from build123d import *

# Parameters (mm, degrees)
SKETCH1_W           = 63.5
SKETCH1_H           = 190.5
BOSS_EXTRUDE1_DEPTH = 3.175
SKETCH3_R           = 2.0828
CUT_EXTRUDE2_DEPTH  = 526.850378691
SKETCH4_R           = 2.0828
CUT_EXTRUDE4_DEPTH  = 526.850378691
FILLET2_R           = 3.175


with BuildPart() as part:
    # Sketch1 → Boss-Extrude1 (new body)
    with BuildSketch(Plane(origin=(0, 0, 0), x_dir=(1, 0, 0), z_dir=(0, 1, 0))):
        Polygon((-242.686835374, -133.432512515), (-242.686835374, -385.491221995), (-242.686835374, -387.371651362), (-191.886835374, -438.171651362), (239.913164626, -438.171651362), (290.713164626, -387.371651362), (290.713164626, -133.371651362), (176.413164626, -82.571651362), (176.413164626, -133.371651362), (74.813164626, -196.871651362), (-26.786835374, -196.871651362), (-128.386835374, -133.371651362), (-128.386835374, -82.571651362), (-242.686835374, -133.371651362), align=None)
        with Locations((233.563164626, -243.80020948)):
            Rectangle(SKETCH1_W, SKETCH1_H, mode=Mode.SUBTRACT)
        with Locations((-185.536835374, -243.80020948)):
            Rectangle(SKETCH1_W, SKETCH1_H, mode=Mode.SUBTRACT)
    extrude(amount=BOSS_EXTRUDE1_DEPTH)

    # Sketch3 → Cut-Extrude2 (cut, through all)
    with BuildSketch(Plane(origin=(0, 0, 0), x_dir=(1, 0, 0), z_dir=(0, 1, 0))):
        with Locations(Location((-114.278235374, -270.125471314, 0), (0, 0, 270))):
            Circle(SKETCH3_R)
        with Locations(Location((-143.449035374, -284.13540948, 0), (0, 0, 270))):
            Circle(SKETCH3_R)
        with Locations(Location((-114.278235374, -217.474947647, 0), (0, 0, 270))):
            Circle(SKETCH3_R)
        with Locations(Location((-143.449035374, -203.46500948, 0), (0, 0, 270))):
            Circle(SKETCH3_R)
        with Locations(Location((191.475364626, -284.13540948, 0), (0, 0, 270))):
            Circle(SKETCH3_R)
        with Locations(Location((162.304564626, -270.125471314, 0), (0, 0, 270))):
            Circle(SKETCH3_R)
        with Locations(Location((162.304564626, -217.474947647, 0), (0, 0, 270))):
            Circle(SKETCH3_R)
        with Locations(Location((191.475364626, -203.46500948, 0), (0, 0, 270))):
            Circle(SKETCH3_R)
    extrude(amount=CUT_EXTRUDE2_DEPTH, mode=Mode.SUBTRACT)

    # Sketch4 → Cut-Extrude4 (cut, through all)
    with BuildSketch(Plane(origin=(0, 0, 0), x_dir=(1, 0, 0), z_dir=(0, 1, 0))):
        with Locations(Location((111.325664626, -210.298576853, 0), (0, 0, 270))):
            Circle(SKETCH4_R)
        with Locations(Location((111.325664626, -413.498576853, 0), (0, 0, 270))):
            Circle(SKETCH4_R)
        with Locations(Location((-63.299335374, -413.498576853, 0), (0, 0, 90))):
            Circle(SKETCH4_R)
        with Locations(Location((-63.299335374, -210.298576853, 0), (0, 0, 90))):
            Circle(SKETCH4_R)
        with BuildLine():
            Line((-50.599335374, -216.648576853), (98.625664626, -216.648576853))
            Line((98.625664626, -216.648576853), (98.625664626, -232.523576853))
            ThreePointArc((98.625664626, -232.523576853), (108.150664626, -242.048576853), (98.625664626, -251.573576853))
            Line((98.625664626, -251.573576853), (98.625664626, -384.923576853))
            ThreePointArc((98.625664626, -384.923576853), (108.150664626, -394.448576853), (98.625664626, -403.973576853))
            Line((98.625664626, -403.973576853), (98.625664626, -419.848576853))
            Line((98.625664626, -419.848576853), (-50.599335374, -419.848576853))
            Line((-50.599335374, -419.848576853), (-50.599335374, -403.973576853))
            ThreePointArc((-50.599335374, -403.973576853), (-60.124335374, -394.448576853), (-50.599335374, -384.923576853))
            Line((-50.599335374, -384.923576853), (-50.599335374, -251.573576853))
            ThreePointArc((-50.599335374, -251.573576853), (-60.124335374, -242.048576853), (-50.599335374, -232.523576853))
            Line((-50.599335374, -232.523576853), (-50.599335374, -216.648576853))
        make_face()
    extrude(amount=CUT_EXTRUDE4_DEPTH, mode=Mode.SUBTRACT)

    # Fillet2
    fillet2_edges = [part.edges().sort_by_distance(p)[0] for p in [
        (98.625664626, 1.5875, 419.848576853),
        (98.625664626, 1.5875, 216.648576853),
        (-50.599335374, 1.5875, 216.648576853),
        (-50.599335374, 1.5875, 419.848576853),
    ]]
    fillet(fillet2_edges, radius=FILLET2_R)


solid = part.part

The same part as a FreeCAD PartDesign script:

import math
import FreeCAD as App
import Part
import Sketcher
Q = App.Units.Quantity


def edges_at(feature, points):
    """Names of the edges that pass closest to the given points."""
    edges = feature.Shape.Edges
    near = lambda p: min(range(len(edges)), key=lambda i: edges[i].distToShape(Part.Vertex(*p))[0])
    return sorted({f"Edge{near(p) + 1}" for p in points})

doc = App.newDocument("Part")
body = doc.addObject("PartDesign::Body", "Body")

# Sketch on XZ plane
sketch1 = doc.addObject("Sketcher::SketchObject", "Sketch")
body.addObject(sketch1)
sketch1.AttachmentSupport = (doc.XZ_Plane, [""])
sketch1.MapMode = "FlatFace"
sketch1.addGeometry([
    Part.LineSegment(App.Vector(-243, 387, 0), App.Vector(-192, 438, 0)),  # 0
    Part.LineSegment(App.Vector(-192, 438, 0), App.Vector(240, 438, 0)),  # 1
    Part.LineSegment(App.Vector(240, 438, 0), App.Vector(291, 387, 0)),  # 2
    Part.LineSegment(App.Vector(291, 387, 0), App.Vector(291, 133, 0)),  # 3
    Part.LineSegment(App.Vector(291, 133, 0), App.Vector(176, 83, 0)),  # 4
    Part.LineSegment(App.Vector(176, 83, 0), App.Vector(176, 133, 0)),  # 5
    Part.LineSegment(App.Vector(176, 133, 0), App.Vector(75, 197, 0)),  # 6
    Part.LineSegment(App.Vector(75, 197, 0), App.Vector(-27, 197, 0)),  # 7
    Part.LineSegment(App.Vector(-27, 197, 0), App.Vector(-128, 133, 0)),  # 8
    Part.LineSegment(App.Vector(-128, 133, 0), App.Vector(-128, 83, 0)),  # 9
    Part.LineSegment(App.Vector(-128, 83, 0), App.Vector(-243, 133, 0)),  # 10
    Part.LineSegment(App.Vector(-243, 133, 0), App.Vector(-243, 387, 0)),  # 11
    Part.LineSegment(App.Vector(-154, 339, 0), App.Vector(-217, 339, 0)),  # 12
    Part.LineSegment(App.Vector(-217, 339, 0), App.Vector(-217, 149, 0)),  # 13
    Part.LineSegment(App.Vector(-217, 149, 0), App.Vector(-154, 149, 0)),  # 14
    Part.LineSegment(App.Vector(-154, 149, 0), App.Vector(-154, 339, 0)),  # 15
    Part.LineSegment(App.Vector(265, 339, 0), App.Vector(202, 339, 0)),  # 16
    Part.LineSegment(App.Vector(202, 339, 0), App.Vector(202, 149, 0)),  # 17
    Part.LineSegment(App.Vector(202, 149, 0), App.Vector(265, 149, 0)),  # 18
    Part.LineSegment(App.Vector(265, 149, 0), App.Vector(265, 339, 0)),  # 19
], False)
sketch1.addConstraint([
    Sketcher.Constraint("Coincident", 0, 2, 1, 1),
    Sketcher.Constraint("Coincident", 1, 2, 2, 1),
    Sketcher.Constraint("Coincident", 2, 2, 3, 1),
    Sketcher.Constraint("Coincident", 3, 2, 4, 1),
    Sketcher.Constraint("Coincident", 4, 2, 5, 1),
    Sketcher.Constraint("Coincident", 5, 2, 6, 1),
    Sketcher.Constraint("Coincident", 6, 2, 7, 1),
    Sketcher.Constraint("Coincident", 7, 2, 8, 1),
    Sketcher.Constraint("Coincident", 8, 2, 9, 1),
    Sketcher.Constraint("Coincident", 9, 2, 10, 1),
    Sketcher.Constraint("Coincident", 10, 2, 11, 1),
    Sketcher.Constraint("Coincident", 11, 2, 0, 1),
    Sketcher.Constraint("Coincident", 12, 2, 13, 1),
    Sketcher.Constraint("Coincident", 13, 2, 14, 1),
    Sketcher.Constraint("Coincident", 14, 2, 15, 1),
    Sketcher.Constraint("Coincident", 15, 2, 12, 1),
    Sketcher.Constraint("Coincident", 16, 2, 17, 1),
    Sketcher.Constraint("Coincident", 17, 2, 18, 1),
    Sketcher.Constraint("Coincident", 18, 2, 19, 1),
    Sketcher.Constraint("Coincident", 19, 2, 16, 1),
    Sketcher.Constraint("Horizontal", 1),
    Sketcher.Constraint("Vertical", 3),
    Sketcher.Constraint("Vertical", 5),
    Sketcher.Constraint("Horizontal", 7),
    Sketcher.Constraint("Vertical", 9),
    Sketcher.Constraint("Vertical", 11),
    Sketcher.Constraint("Horizontal", 12),
    Sketcher.Constraint("Vertical", 13),
    Sketcher.Constraint("Horizontal", 14),
    Sketcher.Constraint("Vertical", 15),
    Sketcher.Constraint("Horizontal", 16),
    Sketcher.Constraint("Vertical", 17),
    Sketcher.Constraint("Horizontal", 18),
    Sketcher.Constraint("Vertical", 19),
    Sketcher.Constraint("Perpendicular", 0, 2),
    Sketcher.Constraint("Horizontal", 3, 2, 5, 2),
    Sketcher.Constraint("Horizontal", 5, 2, 8, 2),
    Sketcher.Constraint("Horizontal", 4, 2, 9, 2),
    Sketcher.Constraint("Horizontal", 8, 2, 10, 2),
    Sketcher.Constraint("Horizontal", 2, 2, 11, 2),
    Sketcher.Constraint("Horizontal", 15, 2, 16, 2),
    Sketcher.Constraint("Horizontal", 14, 2, 17, 2),
    Sketcher.Constraint("Equal", 14, 16),
    Sketcher.Constraint("Equal", 0, 2),
    Sketcher.Constraint("Equal", 6, 8),
    Sketcher.Constraint("Equal", 4, 10),
    Sketcher.Constraint("DistanceX", 1, 1, 1, 2, Q("17 in")),
    Sketcher.Constraint("DistanceX", 7, 2, 7, 1, Q("4 in")),
    Sketcher.Constraint("DistanceY", 3, 2, 3, 1, Q("10 in")),
    Sketcher.Constraint("DistanceY", 5, 1, 5, 2, Q("2 in")),
    Sketcher.Constraint("DistanceX", 12, 2, 12, 1, Q("2.5 in")),
    Sketcher.Constraint("DistanceY", 13, 2, 13, 1, Q("7.5 in")),
    Sketcher.Constraint("DistanceX", 1, 2, 2, 2, Q("2 in")),
    Sketcher.Constraint("DistanceX", 6, 2, 5, 2, Q("4 in")),
    Sketcher.Constraint("DistanceX", 11, 2, 12, 2, Q("1 in")),
    Sketcher.Constraint("DistanceX", 6, 2, 16, 2, Q("5 in")),
    Sketcher.Constraint("DistanceY", 5, 2, 6, 2, Q("2.5 in")),
    Sketcher.Constraint("DistanceX", 0, 2, -1, 1, Q("7.5545998 in")),
    Sketcher.Constraint("DistanceY", -1, 1, 0, 2, Q("438.171651 mm")),
    Sketcher.Constraint("DistanceY", -1, 1, 12, 2, Q("339.050209 mm")),
])
pad1 = doc.addObject("PartDesign::Pad", "Pad")
body.addObject(pad1)
pad1.Profile = sketch1
pad1.Length = Q("0.125 in")
pad1.Reversed = True

# Sketch on XZ plane
sketch2 = doc.addObject("Sketcher::SketchObject", "Sketch001")
body.addObject(sketch2)
sketch2.AttachmentSupport = (doc.XZ_Plane, [""])
sketch2.MapMode = "FlatFace"
sketch2.addGeometry([
    Part.Circle(App.Vector(-114.3, 270.1, 0), App.Vector(0, 0, 1), 2.1),  # 0
    Part.Circle(App.Vector(-143.4, 284.1, 0), App.Vector(0, 0, 1), 2.1),  # 1
    Part.Circle(App.Vector(-114.3, 217.5, 0), App.Vector(0, 0, 1), 2.1),  # 2
    Part.Circle(App.Vector(-143.4, 203.5, 0), App.Vector(0, 0, 1), 2.1),  # 3
    Part.Circle(App.Vector(191.5, 284.1, 0), App.Vector(0, 0, 1), 2.1),  # 4
    Part.Circle(App.Vector(162.3, 270.1, 0), App.Vector(0, 0, 1), 2.1),  # 5
    Part.Circle(App.Vector(162.3, 217.5, 0), App.Vector(0, 0, 1), 2.1),  # 6
    Part.Circle(App.Vector(191.5, 203.5, 0), App.Vector(0, 0, 1), 2.1),  # 7
], False)
sketch2.addConstraint([
    Sketcher.Constraint("Equal", 0, 1),
    Sketcher.Constraint("Equal", 1, 2),
    Sketcher.Constraint("Equal", 2, 3),
    Sketcher.Constraint("Equal", 3, 4),
    Sketcher.Constraint("Equal", 4, 5),
    Sketcher.Constraint("Equal", 5, 6),
    Sketcher.Constraint("Equal", 6, 7),
    Sketcher.Constraint("Horizontal", 1, 3, 4, 3),
    Sketcher.Constraint("Horizontal", 0, 3, 5, 3),
    Sketcher.Constraint("Horizontal", 2, 3, 6, 3),
    Sketcher.Constraint("Horizontal", 3, 3, 7, 3),
    Sketcher.Constraint("Vertical", 0, 3, 2, 3),
    Sketcher.Constraint("Vertical", 1, 3, 3, 3),
    Sketcher.Constraint("Vertical", 5, 3, 6, 3),
    Sketcher.Constraint("Vertical", 4, 3, 7, 3),
    Sketcher.Constraint("Diameter", 0, Q("0.164 in")),
    Sketcher.Constraint("DistanceY", 3, 3, 1, 3, Q("3.176 in")),
    Sketcher.Constraint("DistanceX", 1, 3, 4, 3, Q("13.186 in")),
    Sketcher.Constraint("DistanceX", 1, 3, -1, 1, Q("5.6475998 in")),
    Sketcher.Constraint("DistanceX", 1, 3, 0, 3, Q("29.1708 mm")),
    Sketcher.Constraint("DistanceX", 5, 3, 4, 3, Q("29.1708 mm")),
    Sketcher.Constraint("DistanceY", -1, 1, 0, 3, Q("270.125471 mm")),
    Sketcher.Constraint("DistanceY", -1, 1, 1, 3, Q("284.135409 mm")),
    Sketcher.Constraint("DistanceY", 2, 3, 1, 3, Q("66.660462 mm")),
])
pocket1 = doc.addObject("PartDesign::Pocket", "Pocket")
body.addObject(pocket1)
pocket1.Profile = sketch2
pocket1.Type = "ThroughAll"

# Sketch on XZ plane
sketch3 = doc.addObject("Sketcher::SketchObject", "Sketch002")
body.addObject(sketch3)
sketch3.AttachmentSupport = (doc.XZ_Plane, [""])
sketch3.MapMode = "FlatFace"
sketch3.addGeometry([
    Part.Circle(App.Vector(111.3, 210.3, 0), App.Vector(0, 0, 1), 2.1),  # 0
    Part.Circle(App.Vector(111.3, 413.5, 0), App.Vector(0, 0, 1), 2.1),  # 1
    Part.Circle(App.Vector(-63.3, 413.5, 0), App.Vector(0, 0, 1), 2.1),  # 2
    Part.Circle(App.Vector(-63.3, 210.3, 0), App.Vector(0, 0, 1), 2.1),  # 3
    Part.LineSegment(App.Vector(98.6, 216.6, 0), App.Vector(-50.6, 216.6, 0)),  # 4
    Part.LineSegment(App.Vector(-50.6, 216.6, 0), App.Vector(-50.6, 232.5, 0)),  # 5
    Part.ArcOfCircle(Part.Circle(App.Vector(-50.6, 242, 0), App.Vector(0, 0, 1), 9.5), math.radians(90), math.radians(270)),  # 6
    Part.LineSegment(App.Vector(-50.6, 251.6, 0), App.Vector(-50.6, 384.9, 0)),  # 7
    Part.ArcOfCircle(Part.Circle(App.Vector(-50.6, 394.4, 0), App.Vector(0, 0, 1), 9.5), math.radians(90), math.radians(270)),  # 8
    Part.LineSegment(App.Vector(-50.6, 404, 0), App.Vector(-50.6, 419.8, 0)),  # 9
    Part.LineSegment(App.Vector(-50.6, 419.8, 0), App.Vector(98.6, 419.8, 0)),  # 10
    Part.LineSegment(App.Vector(98.6, 419.8, 0), App.Vector(98.6, 404, 0)),  # 11
    Part.ArcOfCircle(Part.Circle(App.Vector(98.6, 394.4, 0), App.Vector(0, 0, 1), 9.5), math.radians(-90), math.radians(90)),  # 12
    Part.LineSegment(App.Vector(98.6, 384.9, 0), App.Vector(98.6, 251.6, 0)),  # 13
    Part.ArcOfCircle(Part.Circle(App.Vector(98.6, 242, 0), App.Vector(0, 0, 1), 9.5), math.radians(-90), math.radians(90)),  # 14
    Part.LineSegment(App.Vector(98.6, 232.5, 0), App.Vector(98.6, 216.6, 0)),  # 15
], False)
sketch3.addConstraint([
    Sketcher.Constraint("Coincident", 4, 2, 5, 1),
    Sketcher.Constraint("Coincident", 5, 2, 6, 2),
    Sketcher.Constraint("Coincident", 6, 1, 7, 1),
    Sketcher.Constraint("Coincident", 7, 2, 8, 2),
    Sketcher.Constraint("Coincident", 8, 1, 9, 1),
    Sketcher.Constraint("Coincident", 9, 2, 10, 1),
    Sketcher.Constraint("Coincident", 10, 2, 11, 1),
    Sketcher.Constraint("Coincident", 11, 2, 12, 2),
    Sketcher.Constraint("Coincident", 12, 1, 13, 1),
    Sketcher.Constraint("Coincident", 13, 2, 14, 2),
    Sketcher.Constraint("Coincident", 14, 1, 15, 1),
    Sketcher.Constraint("Coincident", 15, 2, 4, 1),
    Sketcher.Constraint("Horizontal", 4),
    Sketcher.Constraint("Vertical", 5),
    Sketcher.Constraint("Vertical", 7),
    Sketcher.Constraint("Vertical", 9),
    Sketcher.Constraint("Horizontal", 10),
    Sketcher.Constraint("Vertical", 11),
    Sketcher.Constraint("Vertical", 13),
    Sketcher.Constraint("Vertical", 15),
    Sketcher.Constraint("Equal", 0, 1),
    Sketcher.Constraint("Equal", 1, 2),
    Sketcher.Constraint("Equal", 2, 3),
    Sketcher.Constraint("Equal", 6, 8),
    Sketcher.Constraint("Equal", 8, 12),
    Sketcher.Constraint("Equal", 12, 14),
    Sketcher.Constraint("Horizontal", 1, 3, 2, 3),
    Sketcher.Constraint("Horizontal", 0, 3, 3, 3),
    Sketcher.Constraint("Horizontal", 8, 3, 12, 3),
    Sketcher.Constraint("Horizontal", 6, 3, 14, 3),
    Sketcher.Constraint("Vertical", 0, 3, 1, 3),
    Sketcher.Constraint("Vertical", 2, 3, 3, 3),
    Sketcher.Constraint("Vertical", 6, 3, 8, 3),
    Sketcher.Constraint("Vertical", 12, 3, 14, 3),
    Sketcher.Constraint("Vertical", 8, 3, 4, 2),
    Sketcher.Constraint("Vertical", 5, 2, 6, 1),
    Sketcher.Constraint("Vertical", 7, 2, 8, 1),
    Sketcher.Constraint("Vertical", 14, 3, 10, 2),
    Sketcher.Constraint("Vertical", 11, 2, 12, 1),
    Sketcher.Constraint("Vertical", 13, 2, 14, 1),
    Sketcher.Constraint("Equal", 5, 9),
    Sketcher.Constraint("Diameter", 0, Q("0.164 in")),
    Sketcher.Constraint("Radius", 6, Q("0.375 in")),
    Sketcher.Constraint("DistanceY", 0, 3, 1, 3, Q("8 in")),
    Sketcher.Constraint("DistanceY", 6, 3, 8, 3, Q("6 in")),
    Sketcher.Constraint("DistanceY", 4, 2, 6, 3, Q("1 in")),
    Sketcher.Constraint("DistanceX", 3, 3, 6, 3, Q("0.5 in")),
    Sketcher.Constraint("DistanceX", 12, 3, 1, 3, Q("0.5 in")),
    Sketcher.Constraint("DistanceX", 4, 2, 4, 1, Q("5.875 in")),
    Sketcher.Constraint("DistanceY", 3, 3, 6, 3, Q("1.25 in")),
    Sketcher.Constraint("DistanceX", -1, 1, 0, 3, Q("4.3829002 in")),
    Sketcher.Constraint("DistanceY", -1, 1, 0, 3, Q("210.298577 mm")),
])
pocket2 = doc.addObject("PartDesign::Pocket", "Pocket001")
body.addObject(pocket2)
pocket2.Profile = sketch3
pocket2.Type = "ThroughAll"
doc.recompute()

fillet = doc.addObject("PartDesign::Fillet", "Fillet")
body.addObject(fillet)
fillet.Base = (pocket2, edges_at(pocket2, [
    (98.626, 1.587, 419.849),
    (98.626, 1.587, 216.649),
    (-50.599, 1.587, 216.649),
    (-50.599, 1.587, 419.849),
]))
fillet.Radius = Q("0.125 in")

doc.recompute()
